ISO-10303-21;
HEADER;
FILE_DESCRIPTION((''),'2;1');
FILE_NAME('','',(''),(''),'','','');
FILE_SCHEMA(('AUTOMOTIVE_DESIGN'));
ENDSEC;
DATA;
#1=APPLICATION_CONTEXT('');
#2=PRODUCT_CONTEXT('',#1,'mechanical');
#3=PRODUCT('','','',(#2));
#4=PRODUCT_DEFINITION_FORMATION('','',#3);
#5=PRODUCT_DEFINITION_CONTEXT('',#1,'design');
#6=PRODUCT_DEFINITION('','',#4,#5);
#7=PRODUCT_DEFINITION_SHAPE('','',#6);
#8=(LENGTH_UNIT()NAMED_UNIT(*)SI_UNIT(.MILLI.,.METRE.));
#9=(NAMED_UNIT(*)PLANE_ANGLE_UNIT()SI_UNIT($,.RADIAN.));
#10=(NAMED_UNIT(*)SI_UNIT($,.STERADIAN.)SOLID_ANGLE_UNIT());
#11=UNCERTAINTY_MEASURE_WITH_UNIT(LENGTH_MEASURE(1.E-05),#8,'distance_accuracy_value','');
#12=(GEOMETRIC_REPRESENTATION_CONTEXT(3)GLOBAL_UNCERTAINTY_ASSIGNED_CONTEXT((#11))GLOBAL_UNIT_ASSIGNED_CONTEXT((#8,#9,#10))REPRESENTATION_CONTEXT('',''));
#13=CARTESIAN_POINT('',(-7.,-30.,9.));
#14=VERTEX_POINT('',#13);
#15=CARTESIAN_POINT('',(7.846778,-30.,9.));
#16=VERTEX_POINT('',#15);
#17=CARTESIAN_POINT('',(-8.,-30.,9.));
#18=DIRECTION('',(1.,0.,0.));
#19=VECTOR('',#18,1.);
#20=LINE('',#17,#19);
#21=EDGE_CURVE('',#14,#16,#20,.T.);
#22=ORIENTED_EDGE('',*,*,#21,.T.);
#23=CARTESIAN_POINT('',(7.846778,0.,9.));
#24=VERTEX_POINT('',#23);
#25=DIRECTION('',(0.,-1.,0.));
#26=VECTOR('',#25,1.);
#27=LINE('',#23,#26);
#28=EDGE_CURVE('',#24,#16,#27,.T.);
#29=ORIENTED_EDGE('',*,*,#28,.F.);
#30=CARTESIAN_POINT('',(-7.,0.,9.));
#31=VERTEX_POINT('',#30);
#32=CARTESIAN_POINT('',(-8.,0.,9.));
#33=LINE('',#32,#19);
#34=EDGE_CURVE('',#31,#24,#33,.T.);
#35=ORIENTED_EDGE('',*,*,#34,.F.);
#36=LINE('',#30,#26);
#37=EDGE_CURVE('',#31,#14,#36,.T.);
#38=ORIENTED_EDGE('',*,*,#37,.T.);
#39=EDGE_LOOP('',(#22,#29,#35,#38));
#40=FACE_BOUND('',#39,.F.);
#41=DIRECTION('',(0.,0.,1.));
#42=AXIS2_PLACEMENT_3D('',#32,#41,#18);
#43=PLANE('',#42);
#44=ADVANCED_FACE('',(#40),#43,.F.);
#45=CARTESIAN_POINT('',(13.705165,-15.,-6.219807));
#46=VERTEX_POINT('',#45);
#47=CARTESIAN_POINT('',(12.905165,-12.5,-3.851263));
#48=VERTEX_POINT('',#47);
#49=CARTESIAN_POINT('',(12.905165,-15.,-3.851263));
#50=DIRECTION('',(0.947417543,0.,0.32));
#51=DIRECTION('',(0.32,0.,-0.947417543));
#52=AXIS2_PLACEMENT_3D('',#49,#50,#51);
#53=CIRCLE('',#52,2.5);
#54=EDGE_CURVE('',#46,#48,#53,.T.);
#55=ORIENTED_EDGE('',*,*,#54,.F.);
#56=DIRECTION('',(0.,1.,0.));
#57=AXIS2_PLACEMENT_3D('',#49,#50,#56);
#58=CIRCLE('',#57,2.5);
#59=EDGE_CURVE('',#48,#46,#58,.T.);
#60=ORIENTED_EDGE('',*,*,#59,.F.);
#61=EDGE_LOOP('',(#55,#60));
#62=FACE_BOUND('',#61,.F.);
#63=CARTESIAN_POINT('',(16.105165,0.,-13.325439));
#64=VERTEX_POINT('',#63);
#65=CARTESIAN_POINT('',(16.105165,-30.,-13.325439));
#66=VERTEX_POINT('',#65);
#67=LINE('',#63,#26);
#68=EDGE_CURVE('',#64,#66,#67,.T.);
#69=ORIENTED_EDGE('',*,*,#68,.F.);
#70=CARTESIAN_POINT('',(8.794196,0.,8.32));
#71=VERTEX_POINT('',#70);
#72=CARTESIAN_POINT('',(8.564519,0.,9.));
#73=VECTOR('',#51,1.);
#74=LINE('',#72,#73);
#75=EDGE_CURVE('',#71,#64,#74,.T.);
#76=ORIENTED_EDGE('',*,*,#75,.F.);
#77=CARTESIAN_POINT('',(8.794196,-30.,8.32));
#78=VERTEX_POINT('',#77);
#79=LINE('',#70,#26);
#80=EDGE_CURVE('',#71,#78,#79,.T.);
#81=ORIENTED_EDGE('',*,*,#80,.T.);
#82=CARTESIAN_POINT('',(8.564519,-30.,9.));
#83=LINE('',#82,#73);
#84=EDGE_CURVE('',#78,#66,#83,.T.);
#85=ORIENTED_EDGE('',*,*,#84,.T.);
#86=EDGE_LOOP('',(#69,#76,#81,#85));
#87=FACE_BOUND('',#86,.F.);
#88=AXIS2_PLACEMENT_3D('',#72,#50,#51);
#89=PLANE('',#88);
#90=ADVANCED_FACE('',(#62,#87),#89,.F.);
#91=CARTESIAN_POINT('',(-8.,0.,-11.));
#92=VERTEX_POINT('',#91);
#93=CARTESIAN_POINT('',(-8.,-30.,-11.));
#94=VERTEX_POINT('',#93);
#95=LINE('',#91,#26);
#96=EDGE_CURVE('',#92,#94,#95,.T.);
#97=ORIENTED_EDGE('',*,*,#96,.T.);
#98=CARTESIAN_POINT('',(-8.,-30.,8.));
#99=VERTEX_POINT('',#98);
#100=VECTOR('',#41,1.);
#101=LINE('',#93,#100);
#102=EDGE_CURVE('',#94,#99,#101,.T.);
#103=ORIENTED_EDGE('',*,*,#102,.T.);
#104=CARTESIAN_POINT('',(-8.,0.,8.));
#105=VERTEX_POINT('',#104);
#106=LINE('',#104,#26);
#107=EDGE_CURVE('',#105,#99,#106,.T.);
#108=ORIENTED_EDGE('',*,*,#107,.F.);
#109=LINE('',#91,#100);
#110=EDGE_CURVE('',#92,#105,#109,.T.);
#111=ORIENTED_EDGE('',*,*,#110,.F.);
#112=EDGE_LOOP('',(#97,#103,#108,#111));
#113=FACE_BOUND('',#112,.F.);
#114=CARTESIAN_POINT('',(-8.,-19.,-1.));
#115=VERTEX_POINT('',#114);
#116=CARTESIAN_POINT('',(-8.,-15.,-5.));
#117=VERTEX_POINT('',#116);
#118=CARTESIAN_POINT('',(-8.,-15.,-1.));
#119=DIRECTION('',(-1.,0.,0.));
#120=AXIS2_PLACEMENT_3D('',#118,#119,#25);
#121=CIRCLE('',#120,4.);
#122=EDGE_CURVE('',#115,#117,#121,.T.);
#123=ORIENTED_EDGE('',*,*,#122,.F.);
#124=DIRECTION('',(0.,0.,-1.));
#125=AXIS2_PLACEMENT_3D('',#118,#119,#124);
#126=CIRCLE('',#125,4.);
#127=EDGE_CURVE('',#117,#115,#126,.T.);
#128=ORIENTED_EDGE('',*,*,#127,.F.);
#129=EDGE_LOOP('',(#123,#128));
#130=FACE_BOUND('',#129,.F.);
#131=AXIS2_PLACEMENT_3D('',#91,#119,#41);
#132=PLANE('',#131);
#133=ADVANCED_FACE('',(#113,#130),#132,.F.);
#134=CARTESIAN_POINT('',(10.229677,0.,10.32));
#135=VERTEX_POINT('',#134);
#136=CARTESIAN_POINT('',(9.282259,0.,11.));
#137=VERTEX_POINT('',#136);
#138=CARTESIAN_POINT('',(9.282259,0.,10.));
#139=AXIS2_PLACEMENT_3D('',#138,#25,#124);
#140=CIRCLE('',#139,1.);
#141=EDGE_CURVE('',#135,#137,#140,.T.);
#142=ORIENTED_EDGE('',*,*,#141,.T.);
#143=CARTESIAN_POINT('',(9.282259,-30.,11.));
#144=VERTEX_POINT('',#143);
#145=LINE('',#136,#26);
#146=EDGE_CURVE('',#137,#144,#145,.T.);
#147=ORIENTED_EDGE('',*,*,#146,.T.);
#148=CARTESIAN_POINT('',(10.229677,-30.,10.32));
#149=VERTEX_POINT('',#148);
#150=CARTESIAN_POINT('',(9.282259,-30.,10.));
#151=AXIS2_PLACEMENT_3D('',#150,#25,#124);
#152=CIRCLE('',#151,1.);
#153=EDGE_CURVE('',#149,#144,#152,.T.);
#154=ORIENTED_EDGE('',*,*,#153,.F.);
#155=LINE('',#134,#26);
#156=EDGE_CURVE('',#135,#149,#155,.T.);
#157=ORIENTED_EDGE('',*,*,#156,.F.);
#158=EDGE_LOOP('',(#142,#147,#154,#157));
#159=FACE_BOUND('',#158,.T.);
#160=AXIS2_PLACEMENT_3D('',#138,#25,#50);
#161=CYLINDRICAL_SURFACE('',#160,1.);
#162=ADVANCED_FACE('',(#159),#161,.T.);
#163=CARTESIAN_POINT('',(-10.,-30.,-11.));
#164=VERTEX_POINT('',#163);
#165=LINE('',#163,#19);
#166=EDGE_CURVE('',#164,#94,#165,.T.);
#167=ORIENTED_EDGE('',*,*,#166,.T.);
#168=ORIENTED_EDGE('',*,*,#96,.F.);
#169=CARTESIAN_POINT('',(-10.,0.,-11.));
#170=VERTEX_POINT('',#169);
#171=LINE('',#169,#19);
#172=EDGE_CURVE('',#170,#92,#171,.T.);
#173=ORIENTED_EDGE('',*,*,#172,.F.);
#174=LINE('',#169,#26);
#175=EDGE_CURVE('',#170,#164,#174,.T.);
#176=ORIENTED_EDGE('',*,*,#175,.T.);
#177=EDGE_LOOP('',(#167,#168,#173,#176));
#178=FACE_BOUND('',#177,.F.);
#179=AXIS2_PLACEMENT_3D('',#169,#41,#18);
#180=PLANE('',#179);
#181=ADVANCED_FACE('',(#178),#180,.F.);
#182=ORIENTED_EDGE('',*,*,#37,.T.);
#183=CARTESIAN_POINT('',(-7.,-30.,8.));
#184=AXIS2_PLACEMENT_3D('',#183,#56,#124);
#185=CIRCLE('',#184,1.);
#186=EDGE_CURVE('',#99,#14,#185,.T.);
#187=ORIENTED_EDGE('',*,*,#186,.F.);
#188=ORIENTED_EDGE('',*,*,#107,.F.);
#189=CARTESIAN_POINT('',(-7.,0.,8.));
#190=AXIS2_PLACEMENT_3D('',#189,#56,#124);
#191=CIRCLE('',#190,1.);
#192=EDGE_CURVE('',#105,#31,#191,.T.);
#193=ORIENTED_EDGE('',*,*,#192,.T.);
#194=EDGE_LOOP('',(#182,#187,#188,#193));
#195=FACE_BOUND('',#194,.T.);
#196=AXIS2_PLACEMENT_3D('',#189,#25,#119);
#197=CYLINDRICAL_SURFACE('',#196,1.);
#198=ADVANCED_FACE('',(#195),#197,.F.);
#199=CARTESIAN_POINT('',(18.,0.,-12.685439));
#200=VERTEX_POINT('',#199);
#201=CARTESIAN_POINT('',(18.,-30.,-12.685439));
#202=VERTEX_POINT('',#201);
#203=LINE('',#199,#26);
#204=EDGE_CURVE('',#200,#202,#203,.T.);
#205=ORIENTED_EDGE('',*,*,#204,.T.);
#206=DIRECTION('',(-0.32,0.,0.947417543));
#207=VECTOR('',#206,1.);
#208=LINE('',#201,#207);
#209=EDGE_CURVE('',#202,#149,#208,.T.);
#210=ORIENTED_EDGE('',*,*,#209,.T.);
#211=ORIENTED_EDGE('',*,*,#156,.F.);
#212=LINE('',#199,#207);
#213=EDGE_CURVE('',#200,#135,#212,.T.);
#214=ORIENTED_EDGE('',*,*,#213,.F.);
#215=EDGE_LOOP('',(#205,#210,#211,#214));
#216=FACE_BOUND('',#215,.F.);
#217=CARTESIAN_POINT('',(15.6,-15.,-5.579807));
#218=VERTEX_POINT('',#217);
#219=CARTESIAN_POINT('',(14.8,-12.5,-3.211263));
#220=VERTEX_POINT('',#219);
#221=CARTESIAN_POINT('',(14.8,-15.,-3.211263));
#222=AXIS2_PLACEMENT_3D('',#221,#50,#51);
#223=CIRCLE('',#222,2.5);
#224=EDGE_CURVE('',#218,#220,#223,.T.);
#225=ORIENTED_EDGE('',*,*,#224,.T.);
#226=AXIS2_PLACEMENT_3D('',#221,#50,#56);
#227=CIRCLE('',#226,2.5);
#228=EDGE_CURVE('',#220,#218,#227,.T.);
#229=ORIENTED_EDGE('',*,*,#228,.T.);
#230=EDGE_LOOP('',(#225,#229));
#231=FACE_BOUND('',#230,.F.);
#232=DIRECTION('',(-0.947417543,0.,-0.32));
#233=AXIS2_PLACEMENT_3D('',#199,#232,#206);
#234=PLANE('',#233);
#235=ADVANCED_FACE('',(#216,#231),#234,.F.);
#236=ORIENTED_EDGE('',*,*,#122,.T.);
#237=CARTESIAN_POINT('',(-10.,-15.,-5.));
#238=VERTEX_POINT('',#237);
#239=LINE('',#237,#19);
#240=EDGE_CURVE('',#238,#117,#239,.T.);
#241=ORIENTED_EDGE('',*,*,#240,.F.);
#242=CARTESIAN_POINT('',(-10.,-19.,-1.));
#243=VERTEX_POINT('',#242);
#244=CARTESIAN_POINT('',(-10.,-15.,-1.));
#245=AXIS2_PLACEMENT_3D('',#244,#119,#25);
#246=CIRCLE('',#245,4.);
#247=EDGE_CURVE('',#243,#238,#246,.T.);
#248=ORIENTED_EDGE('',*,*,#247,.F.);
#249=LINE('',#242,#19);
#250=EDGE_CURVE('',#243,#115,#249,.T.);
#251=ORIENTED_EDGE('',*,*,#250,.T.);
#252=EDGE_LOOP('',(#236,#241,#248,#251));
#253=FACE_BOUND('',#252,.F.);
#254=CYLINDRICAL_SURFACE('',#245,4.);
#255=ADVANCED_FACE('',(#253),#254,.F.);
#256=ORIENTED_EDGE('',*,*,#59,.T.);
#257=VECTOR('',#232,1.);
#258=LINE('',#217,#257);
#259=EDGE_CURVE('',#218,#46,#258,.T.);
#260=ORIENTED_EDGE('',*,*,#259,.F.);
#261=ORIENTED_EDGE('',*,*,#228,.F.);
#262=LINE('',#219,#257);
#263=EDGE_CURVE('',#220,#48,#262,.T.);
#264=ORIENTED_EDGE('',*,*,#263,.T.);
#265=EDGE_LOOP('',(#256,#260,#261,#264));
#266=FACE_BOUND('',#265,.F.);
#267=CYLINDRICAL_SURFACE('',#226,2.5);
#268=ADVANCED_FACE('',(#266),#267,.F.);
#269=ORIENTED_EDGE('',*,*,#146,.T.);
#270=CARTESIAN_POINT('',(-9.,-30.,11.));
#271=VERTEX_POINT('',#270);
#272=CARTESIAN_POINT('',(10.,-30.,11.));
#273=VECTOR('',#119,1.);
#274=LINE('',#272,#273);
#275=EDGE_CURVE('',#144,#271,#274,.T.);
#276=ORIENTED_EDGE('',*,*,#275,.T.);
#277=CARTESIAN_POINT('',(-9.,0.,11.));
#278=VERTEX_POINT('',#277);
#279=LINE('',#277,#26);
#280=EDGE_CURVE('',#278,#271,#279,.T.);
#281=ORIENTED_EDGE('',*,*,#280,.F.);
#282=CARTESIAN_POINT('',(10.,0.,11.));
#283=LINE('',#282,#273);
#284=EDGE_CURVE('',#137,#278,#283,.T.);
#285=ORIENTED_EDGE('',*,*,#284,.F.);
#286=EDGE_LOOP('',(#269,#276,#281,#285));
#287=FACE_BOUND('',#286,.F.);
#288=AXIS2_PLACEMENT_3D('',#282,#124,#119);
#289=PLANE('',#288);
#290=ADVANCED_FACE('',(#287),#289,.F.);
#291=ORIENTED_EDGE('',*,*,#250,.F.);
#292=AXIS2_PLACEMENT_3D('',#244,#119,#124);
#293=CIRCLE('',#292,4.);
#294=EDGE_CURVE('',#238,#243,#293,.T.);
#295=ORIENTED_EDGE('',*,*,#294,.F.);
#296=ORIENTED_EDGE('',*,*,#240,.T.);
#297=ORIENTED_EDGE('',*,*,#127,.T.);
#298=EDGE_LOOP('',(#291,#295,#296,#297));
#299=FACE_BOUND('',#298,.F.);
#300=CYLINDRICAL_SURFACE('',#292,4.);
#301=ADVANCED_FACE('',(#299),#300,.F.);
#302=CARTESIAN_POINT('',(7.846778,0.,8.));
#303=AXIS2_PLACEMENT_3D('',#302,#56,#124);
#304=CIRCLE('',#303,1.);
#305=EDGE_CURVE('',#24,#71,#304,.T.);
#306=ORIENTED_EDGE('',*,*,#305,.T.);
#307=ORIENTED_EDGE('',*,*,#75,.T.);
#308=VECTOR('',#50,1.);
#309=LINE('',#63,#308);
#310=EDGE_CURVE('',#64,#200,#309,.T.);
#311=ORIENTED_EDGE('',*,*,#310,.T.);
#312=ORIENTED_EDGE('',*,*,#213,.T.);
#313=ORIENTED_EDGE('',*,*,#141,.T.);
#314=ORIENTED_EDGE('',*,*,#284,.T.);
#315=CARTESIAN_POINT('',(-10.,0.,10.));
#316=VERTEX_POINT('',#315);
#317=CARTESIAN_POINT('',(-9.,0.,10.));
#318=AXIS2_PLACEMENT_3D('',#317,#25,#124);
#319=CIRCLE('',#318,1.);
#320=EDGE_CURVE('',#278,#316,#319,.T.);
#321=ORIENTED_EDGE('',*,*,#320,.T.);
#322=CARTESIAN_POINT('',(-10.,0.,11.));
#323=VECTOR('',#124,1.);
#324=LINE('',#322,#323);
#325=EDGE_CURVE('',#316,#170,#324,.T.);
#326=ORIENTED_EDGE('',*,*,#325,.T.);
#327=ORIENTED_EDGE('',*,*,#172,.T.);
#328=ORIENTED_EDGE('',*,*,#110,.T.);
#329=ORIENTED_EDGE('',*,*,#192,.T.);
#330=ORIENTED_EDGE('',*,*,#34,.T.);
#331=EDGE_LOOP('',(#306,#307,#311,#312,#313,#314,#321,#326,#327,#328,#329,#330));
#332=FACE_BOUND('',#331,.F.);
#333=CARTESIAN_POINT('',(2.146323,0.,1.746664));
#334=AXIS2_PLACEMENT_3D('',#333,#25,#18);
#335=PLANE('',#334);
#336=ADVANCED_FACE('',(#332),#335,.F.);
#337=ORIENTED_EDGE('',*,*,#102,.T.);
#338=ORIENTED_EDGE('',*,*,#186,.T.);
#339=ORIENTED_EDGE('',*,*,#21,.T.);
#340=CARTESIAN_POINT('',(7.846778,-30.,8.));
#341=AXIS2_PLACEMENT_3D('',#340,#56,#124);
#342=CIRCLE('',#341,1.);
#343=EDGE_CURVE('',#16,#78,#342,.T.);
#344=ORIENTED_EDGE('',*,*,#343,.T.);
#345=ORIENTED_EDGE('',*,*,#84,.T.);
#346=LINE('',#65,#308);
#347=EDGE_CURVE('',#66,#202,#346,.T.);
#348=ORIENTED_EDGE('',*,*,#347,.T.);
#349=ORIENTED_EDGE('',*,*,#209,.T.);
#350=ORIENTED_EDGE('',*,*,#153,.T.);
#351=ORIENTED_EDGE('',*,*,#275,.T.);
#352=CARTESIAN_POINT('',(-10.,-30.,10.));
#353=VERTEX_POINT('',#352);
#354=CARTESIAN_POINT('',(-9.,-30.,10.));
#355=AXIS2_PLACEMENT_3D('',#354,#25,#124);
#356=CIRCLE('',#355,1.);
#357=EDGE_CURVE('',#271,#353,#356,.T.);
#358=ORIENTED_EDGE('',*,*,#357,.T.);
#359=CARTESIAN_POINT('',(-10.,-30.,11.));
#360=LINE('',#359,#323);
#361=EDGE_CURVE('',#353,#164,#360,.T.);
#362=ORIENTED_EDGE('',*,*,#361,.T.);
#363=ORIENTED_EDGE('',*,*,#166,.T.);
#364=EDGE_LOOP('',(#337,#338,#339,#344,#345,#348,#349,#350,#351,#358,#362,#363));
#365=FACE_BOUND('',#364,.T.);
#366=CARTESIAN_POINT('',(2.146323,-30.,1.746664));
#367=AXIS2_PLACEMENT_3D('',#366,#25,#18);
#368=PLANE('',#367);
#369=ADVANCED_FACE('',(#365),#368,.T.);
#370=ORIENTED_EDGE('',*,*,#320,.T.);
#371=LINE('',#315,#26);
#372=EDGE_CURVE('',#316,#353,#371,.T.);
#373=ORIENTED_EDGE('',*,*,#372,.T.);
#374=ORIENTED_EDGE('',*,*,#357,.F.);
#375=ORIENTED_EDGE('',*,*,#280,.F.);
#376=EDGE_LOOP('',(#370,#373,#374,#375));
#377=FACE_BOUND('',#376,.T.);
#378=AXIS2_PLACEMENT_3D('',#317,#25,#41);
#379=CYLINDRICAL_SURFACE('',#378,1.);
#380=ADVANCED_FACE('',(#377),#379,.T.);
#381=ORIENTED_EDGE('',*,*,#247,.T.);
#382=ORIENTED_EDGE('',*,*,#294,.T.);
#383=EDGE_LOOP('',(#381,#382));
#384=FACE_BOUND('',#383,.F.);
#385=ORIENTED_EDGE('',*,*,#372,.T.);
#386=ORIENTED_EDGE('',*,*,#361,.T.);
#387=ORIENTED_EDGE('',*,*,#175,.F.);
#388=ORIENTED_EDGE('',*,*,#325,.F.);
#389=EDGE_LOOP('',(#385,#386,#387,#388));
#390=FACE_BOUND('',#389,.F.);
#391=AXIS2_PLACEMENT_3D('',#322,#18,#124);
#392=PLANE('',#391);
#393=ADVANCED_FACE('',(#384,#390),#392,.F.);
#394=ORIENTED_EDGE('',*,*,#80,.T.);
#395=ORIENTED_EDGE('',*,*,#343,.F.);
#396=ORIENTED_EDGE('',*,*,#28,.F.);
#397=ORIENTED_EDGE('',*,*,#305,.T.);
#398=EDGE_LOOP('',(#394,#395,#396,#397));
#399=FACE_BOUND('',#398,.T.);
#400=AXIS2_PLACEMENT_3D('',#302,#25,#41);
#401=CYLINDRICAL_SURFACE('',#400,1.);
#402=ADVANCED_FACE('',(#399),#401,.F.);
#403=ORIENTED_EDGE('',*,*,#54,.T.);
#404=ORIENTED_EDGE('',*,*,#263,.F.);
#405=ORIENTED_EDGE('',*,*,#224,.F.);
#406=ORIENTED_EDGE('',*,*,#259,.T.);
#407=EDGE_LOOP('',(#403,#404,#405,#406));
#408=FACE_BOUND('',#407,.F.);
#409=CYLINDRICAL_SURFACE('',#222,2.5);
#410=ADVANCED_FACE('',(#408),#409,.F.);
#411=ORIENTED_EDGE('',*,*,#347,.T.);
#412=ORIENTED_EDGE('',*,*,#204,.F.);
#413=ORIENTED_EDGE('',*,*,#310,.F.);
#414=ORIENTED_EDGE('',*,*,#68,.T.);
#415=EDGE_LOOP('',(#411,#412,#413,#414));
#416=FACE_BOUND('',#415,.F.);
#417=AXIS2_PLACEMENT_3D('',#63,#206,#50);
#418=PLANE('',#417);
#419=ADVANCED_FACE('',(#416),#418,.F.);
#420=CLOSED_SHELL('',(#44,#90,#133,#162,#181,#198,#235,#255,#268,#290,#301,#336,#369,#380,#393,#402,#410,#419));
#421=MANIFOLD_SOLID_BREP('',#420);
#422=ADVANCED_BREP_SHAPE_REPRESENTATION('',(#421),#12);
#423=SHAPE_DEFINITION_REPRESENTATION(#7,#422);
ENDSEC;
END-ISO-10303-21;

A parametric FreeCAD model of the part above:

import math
import FreeCAD as App
import Part
import Sketcher

V = App.Vector
Q = App.Units.Quantity


def edges_at(feature, points):
    """Names of the edges that pass closest to the given points."""
    edges = feature.Shape.Edges
    near = lambda p: min(range(len(edges)), key=lambda i: edges[i].distToShape(Part.Vertex(*p))[0])
    return sorted({f"Edge{near(p) + 1}" for p in points})

doc = App.newDocument("Part")
body = doc.addObject("PartDesign::Body", "Body")

# Sketch on XZ plane
sketch1 = doc.addObject("Sketcher::SketchObject", "Sketch")
body.addObject(sketch1)
sketch1.AttachmentSupport = (doc.XZ_Plane, [""])
sketch1.MapMode = "FlatFace"
sketch1.addGeometry(Part.LineSegment(V(18, -12.7, 0), V(10, 11, 0)), False)
sketch1.addGeometry(Part.LineSegment(V(10, 11, 0), V(-10, 11, 0)), False)
sketch1.addGeometry(Part.LineSegment(V(-10, 11, 0), V(-10, -11, 0)), False)
sketch1.addGeometry(Part.LineSegment(V(-10, -11, 0), V(-8, -11, 0)), False)
sketch1.addGeometry(Part.LineSegment(V(-8, -11, 0), V(-8, 9, 0)), False)
sketch1.addGeometry(Part.LineSegment(V(-8, 9, 0), V(8.6, 9, 0)), False)
sketch1.addGeometry(Part.LineSegment(V(8.6, 9, 0), V(16.1, -13.3, 0)), False)
sketch1.addGeometry(Part.LineSegment(V(16.1, -13.3, 0), V(18, -12.7, 0)), False)
sketch1.addConstraint(Sketcher.Constraint("Coincident", 0, 2, 1, 1))
sketch1.addConstraint(Sketcher.Constraint("Coincident", 1, 2, 2, 1))
sketch1.addConstraint(Sketcher.Constraint("Coincident", 2, 2, 3, 1))
sketch1.addConstraint(Sketcher.Constraint("Coincident", 3, 2, 4, 1))
sketch1.addConstraint(Sketcher.Constraint("Coincident", 4, 2, 5, 1))
sketch1.addConstraint(Sketcher.Constraint("Coincident", 5, 2, 6, 1))
sketch1.addConstraint(Sketcher.Constraint("Coincident", 6, 2, 7, 1))
sketch1.addConstraint(Sketcher.Constraint("Coincident", 7, 2, 0, 1))
sketch1.addConstraint(Sketcher.Constraint("Horizontal", 1))
sketch1.addConstraint(Sketcher.Constraint("Vertical", 2))
sketch1.addConstraint(Sketcher.Constraint("Horizontal", 3))
sketch1.addConstraint(Sketcher.Constraint("Vertical", 4))
sketch1.addConstraint(Sketcher.Constraint("Horizontal", 5))
sketch1.addConstraint(Sketcher.Constraint("Symmetric", 0, 2, 2, 2, -1, 1))
sketch1.addConstraint(Sketcher.Constraint("Parallel", 0, 6))
sketch1.addConstraint(Sketcher.Constraint("Perpendicular", 6, 7))
sketch1.addConstraint(Sketcher.Constraint("Equal", 1, 4))
sketch1.addConstraint(Sketcher.Constraint("DistanceX", 1, 2, 1, 1, Q("20 mm")))
sketch1.addConstraint(Sketcher.Constraint("DistanceX", 3, 1, 3, 2, Q("2 mm")))
sketch1.addConstraint(Sketcher.Constraint("DistanceY", 2, 2, 2, 1, Q("22 mm")))
sketch1.addConstraint(Sketcher.Constraint("Distance", 0, Q("25 mm")))
sketch1.addConstraint(Sketcher.Constraint("Distance", 7, Q("2 mm")))
sketch1.addConstraint(Sketcher.Constraint("DistanceX", -1, 1, 7, 2, Q("18 mm")))
pad1 = doc.addObject("PartDesign::Pad", "Pad")
body.addObject(pad1)
pad1.Profile = sketch1
pad1.Length = 30
doc.recompute()

fillet = doc.addObject("PartDesign::Fillet", "Fillet")
body.addObject(fillet)
fillet.Base = (pad1, edges_at(pad1, [
    (10, -15, 11),
    (-10, -15, 11),
    (-8, -15, 9),
    (8.565, -15, 9),
]))
fillet.Radius = 1

# Sketch on an angled plane
sketch2 = doc.addObject("Sketcher::SketchObject", "Sketch001")
body.addObject(sketch2)
sketch2.Placement = App.Placement(V(12.31091, 0, 4.158136), App.Rotation(V(0, 1, 0), V(-0.32, 0, 0.947417543), V(0.947417543, 0, 0.32), "ZXY"))
sketch2.addGeometry(Part.ArcOfCircle(Part.Circle(V(-15, -7.8, 0), V(0, 0, 1), 2.5), math.radians(0), math.radians(270)), False)
sketch2.addGeometry(Part.ArcOfCircle(Part.Circle(V(-15, -7.8, 0), V(0, 0, 1), 2.5), math.radians(-90), math.radians(0)), False)
sketch2.addConstraint(Sketcher.Constraint("Tangent", 0, 1, 1, 2))
sketch2.addConstraint(Sketcher.Constraint("Coincident", 1, 1, 0, 2))
sketch2.addConstraint(Sketcher.Constraint("Horizontal", 1, 3, 0, 1))
sketch2.addConstraint(Sketcher.Constraint("Vertical", 0, 3, 1, 1))
sketch2.addConstraint(Sketcher.Constraint("Radius", 0, Q("2.5 mm")))
sketch2.addConstraint(Sketcher.Constraint("DistanceX", 0, 3, -1, 1, Q("15 mm")))
sketch2.addConstraint(Sketcher.Constraint("DistanceY", 0, 3, -1, 1, Q("7.778407 mm")))
pocket1 = doc.addObject("PartDesign::Pocket", "Pocket")
body.addObject(pocket1)
pocket1.Profile = sketch2
pocket1.Length = 3

# Sketch on YZ plane
sketch3 = doc.addObject("Sketcher::SketchObject", "Sketch002")
body.addObject(sketch3)
sketch3.AttachmentSupport = (doc.YZ_Plane, [""])
sketch3.MapMode = "FlatFace"
sketch3.AttachmentOffset = App.Placement(V(0, 0, -10), App.Rotation())
sketch3.addGeometry(Part.ArcOfCircle(Part.Circle(V(-15, -1, 0), V(0, 0, 1), 4), math.radians(-90), math.radians(180)), False)
sketch3.addGeometry(Part.ArcOfCircle(Part.Circle(V(-15, -1, 0), V(0, 0, 1), 4), math.radians(180), math.radians(270)), False)
sketch3.addConstraint(Sketcher.Constraint("Tangent", 0, 1, 1, 2))
sketch3.addConstraint(Sketcher.Constraint("Coincident", 1, 1, 0, 2))
sketch3.addConstraint(Sketcher.Constraint("Horizontal", 0, 3, 1, 1))
sketch3.addConstraint(Sketcher.Constraint("Vertical", 1, 3, 0, 1))
sketch3.addConstraint(Sketcher.Constraint("Radius", 0, Q("4 mm")))
sketch3.addConstraint(Sketcher.Constraint("DistanceX", 0, 3, -1, 1, Q("15 mm")))
sketch3.addConstraint(Sketcher.Constraint("DistanceY", 0, 3, -1, 1, Q("1 mm")))
pocket2 = doc.addObject("PartDesign::Pocket", "Pocket001")
body.addObject(pocket2)
pocket2.Profile = sketch3
pocket2.Length = 3
pocket2.Reversed = True

doc.recompute()
